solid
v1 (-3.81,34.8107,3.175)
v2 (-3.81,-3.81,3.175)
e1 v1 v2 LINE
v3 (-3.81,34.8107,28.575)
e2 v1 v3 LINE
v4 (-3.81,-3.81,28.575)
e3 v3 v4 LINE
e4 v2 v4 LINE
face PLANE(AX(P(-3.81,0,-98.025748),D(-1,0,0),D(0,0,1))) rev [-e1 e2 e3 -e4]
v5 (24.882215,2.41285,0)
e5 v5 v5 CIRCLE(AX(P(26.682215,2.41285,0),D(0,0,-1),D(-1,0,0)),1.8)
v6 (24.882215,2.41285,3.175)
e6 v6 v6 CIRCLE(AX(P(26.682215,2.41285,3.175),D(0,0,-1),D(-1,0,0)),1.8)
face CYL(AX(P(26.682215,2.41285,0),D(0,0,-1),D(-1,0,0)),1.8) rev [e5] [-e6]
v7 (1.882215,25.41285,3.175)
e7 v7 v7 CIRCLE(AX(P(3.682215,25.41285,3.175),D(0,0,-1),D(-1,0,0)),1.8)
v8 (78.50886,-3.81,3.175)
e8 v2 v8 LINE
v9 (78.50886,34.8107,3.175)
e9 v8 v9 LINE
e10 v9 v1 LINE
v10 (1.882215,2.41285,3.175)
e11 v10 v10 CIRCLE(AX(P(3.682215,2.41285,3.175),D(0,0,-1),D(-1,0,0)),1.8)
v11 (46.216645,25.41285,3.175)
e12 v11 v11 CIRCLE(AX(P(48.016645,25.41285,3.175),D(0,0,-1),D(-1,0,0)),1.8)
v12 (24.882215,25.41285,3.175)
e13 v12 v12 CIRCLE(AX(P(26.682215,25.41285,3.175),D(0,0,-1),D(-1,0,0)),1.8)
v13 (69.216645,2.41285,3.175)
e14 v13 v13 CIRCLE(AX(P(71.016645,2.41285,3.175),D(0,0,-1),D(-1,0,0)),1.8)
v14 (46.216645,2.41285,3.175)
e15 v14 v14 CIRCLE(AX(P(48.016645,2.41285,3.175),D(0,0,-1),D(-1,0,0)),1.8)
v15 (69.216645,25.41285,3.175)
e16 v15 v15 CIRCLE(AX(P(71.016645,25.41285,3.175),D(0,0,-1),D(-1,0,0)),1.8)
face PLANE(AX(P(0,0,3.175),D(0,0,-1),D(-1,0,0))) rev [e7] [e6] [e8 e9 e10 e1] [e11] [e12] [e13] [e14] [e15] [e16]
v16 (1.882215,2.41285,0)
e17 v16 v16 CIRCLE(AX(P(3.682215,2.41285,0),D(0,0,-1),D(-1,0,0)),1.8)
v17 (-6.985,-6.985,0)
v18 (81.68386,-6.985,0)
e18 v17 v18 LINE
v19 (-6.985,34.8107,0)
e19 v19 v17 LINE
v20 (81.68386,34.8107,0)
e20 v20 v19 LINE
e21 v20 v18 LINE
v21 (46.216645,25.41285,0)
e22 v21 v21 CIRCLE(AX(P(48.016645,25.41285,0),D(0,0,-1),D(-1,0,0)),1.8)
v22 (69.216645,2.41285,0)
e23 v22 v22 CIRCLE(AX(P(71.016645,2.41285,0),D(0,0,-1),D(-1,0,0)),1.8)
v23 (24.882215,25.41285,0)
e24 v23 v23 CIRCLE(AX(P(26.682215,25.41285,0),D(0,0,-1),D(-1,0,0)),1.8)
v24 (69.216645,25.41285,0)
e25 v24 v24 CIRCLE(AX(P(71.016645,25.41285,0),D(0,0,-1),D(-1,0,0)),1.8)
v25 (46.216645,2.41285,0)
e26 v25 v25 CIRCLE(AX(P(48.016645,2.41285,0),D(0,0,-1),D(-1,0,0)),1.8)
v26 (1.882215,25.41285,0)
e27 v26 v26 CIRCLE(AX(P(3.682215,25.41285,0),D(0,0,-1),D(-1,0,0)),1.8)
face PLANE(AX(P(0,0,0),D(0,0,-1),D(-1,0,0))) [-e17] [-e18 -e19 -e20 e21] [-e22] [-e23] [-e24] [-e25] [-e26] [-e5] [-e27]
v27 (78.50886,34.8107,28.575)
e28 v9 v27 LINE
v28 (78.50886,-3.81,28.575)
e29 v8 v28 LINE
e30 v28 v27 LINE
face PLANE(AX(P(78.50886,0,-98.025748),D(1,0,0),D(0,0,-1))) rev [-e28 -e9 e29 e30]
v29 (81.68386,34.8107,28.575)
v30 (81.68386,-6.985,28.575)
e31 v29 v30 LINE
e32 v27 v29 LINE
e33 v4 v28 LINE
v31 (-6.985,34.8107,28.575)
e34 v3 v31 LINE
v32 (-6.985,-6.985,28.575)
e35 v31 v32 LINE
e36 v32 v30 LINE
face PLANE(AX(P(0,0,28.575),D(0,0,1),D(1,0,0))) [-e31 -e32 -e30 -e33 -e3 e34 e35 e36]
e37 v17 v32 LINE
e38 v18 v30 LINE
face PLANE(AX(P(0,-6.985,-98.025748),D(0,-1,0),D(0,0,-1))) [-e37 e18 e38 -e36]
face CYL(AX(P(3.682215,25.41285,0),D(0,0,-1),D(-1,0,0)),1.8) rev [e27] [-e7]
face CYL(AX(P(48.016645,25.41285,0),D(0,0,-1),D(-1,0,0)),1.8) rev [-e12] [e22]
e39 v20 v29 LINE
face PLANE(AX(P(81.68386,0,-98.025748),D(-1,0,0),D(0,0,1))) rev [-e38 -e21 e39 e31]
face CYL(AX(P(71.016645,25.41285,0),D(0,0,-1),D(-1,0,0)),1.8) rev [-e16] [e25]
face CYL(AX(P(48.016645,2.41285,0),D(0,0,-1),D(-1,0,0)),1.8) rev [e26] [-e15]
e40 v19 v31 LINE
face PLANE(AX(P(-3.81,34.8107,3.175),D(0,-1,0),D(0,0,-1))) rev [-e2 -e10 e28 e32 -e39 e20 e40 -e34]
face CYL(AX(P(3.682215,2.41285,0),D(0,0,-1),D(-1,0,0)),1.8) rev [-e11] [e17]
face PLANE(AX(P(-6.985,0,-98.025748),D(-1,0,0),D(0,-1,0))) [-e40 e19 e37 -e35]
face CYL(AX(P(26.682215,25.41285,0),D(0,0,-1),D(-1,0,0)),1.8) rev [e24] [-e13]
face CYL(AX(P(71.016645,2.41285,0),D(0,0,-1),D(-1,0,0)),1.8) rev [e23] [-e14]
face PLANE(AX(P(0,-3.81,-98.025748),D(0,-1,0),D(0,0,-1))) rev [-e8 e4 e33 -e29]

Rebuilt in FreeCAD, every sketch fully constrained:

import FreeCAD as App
import Part
import Sketcher
from FreeCAD import Vector
Q = App.Units.Quantity

doc = App.newDocument("Part")
body = doc.addObject("PartDesign::Body", "Body")

# Sketch on XY plane
sketch1 = body.newObject("Sketcher::SketchObject", "Sketch")
sketch1.AttachmentSupport = (doc.getObject("XY_Plane"), [""])
sketch1.MapMode = "FlatFace"
sketch1.addGeometry(Part.LineSegment(Vector(-4, 35, 0), Vector(-4, -4, 0)), False)
sketch1.addGeometry(Part.LineSegment(Vector(-4, -4, 0), Vector(79, -4, 0)), False)
sketch1.addGeometry(Part.LineSegment(Vector(79, -4, 0), Vector(79, 35, 0)), False)
sketch1.addGeometry(Part.LineSegment(Vector(79, 35, 0), Vector(-4, 35, 0)), False)
sketch1.addConstraint(Sketcher.Constraint("Coincident", 0, 2, 1, 1))
sketch1.addConstraint(Sketcher.Constraint("Coincident", 1, 2, 2, 1))
sketch1.addConstraint(Sketcher.Constraint("Coincident", 2, 2, 3, 1))
sketch1.addConstraint(Sketcher.Constraint("Coincident", 3, 2, 0, 1))
sketch1.addConstraint(Sketcher.Constraint("Vertical", 0))
sketch1.addConstraint(Sketcher.Constraint("Horizontal", 1))
sketch1.addConstraint(Sketcher.Constraint("Vertical", 2))
sketch1.addConstraint(Sketcher.Constraint("Horizontal", 3))
sketch1.addConstraint(Sketcher.Constraint("DistanceX", 0, 2, -1, 1, Q("0.15 in")))
sketch1.addConstraint(Sketcher.Constraint("DistanceY", 0, 2, -1, 1, Q("0.15 in")))
sketch1.addConstraint(Sketcher.Constraint("DistanceX", 1, 1, 1, 2, Q("3.2409 in")))
sketch1.addConstraint(Sketcher.Constraint("DistanceY", 0, 2, 0, 1, Q("1.5205 in")))
pad1 = body.newObject("PartDesign::Pad", "Pad")
pad1.Profile = sketch1
pad1.Length = Q("0.125 in")

# Sketch on XY plane
sketch2 = body.newObject("Sketcher::SketchObject", "Sketch001")
sketch2.AttachmentSupport = (doc.getObject("XY_Plane"), [""])
sketch2.MapMode = "FlatFace"
sketch2.AttachmentOffset = App.Placement(Vector(0, 0, 0.125 * 25.4), App.Rotation())
sketch2.addGeometry(Part.LineSegment(Vector(-7, 34.8, 0), Vector(-7, -7, 0)), False)
sketch2.addGeometry(Part.LineSegment(Vector(-7, -7, 0), Vector(81.7, -7, 0)), False)
sketch2.addGeometry(Part.LineSegment(Vector(81.7, -7, 0), Vector(81.7, 34.8, 0)), False)
sketch2.addGeometry(Part.LineSegment(Vector(81.7, 34.8, 0), Vector(78.5, 34.8, 0)), False)
sketch2.addGeometry(Part.LineSegment(Vector(78.5, 34.8, 0), Vector(78.5, -3.8, 0)), False)
sketch2.addGeometry(Part.LineSegment(Vector(78.5, -3.8, 0), Vector(-3.8, -3.8, 0)), False)
sketch2.addGeometry(Part.LineSegment(Vector(-3.8, -3.8, 0), Vector(-3.8, 34.8, 0)), False)
sketch2.addGeometry(Part.LineSegment(Vector(-3.8, 34.8, 0), Vector(-7, 34.8, 0)), False)
sketch2.addConstraint(Sketcher.Constraint("Coincident", 0, 2, 1, 1))
sketch2.addConstraint(Sketcher.Constraint("Coincident", 1, 2, 2, 1))
sketch2.addConstraint(Sketcher.Constraint("Coincident", 2, 2, 3, 1))
sketch2.addConstraint(Sketcher.Constraint("Coincident", 3, 2, 4, 1))
sketch2.addConstraint(Sketcher.Constraint("Coincident", 4, 2, 5, 1))
sketch2.addConstraint(Sketcher.Constraint("Coincident", 5, 2, 6, 1))
sketch2.addConstraint(Sketcher.Constraint("Coincident", 6, 2, 7, 1))
sketch2.addConstraint(Sketcher.Constraint("Coincident", 7, 2, 0, 1))
sketch2.addConstraint(Sketcher.Constraint("Vertical", 0))
sketch2.addConstraint(Sketcher.Constraint("Horizontal", 1))
sketch2.addConstraint(Sketcher.Constraint("Vertical", 2))
sketch2.addConstraint(Sketcher.Constraint("Horizontal", 3))
sketch2.addConstraint(Sketcher.Constraint("Vertical", 4))
sketch2.addConstraint(Sketcher.Constraint("Horizontal", 5))
sketch2.addConstraint(Sketcher.Constraint("Vertical", 6))
sketch2.addConstraint(Sketcher.Constraint("Horizontal", 7))
sketch2.addConstraint(Sketcher.Constraint("Horizontal", 3, 2, 6, 2))
sketch2.addConstraint(Sketcher.Constraint("Equal", 3, 7))
sketch2.addConstraint(Sketcher.Constraint("DistanceX", 3, 2, 3, 1, Q("0.125 in")))
sketch2.addConstraint(Sketcher.Constraint("DistanceY", 4, 2, -1, 1, Q("0.15 in")))
sketch2.addConstraint(Sketcher.Constraint("DistanceX", 5, 2, -1, 1, Q("0.15 in")))
sketch2.addConstraint(Sketcher.Constraint("DistanceX", 1, 1, 1, 2, Q("3.4909 in")))
sketch2.addConstraint(Sketcher.Constraint("DistanceY", 0, 2, 0, 1, Q("1.6455 in")))
sketch2.addConstraint(Sketcher.Constraint("DistanceY", 4, 2, 4, 1, Q("1.5205 in")))
pad2 = body.newObject("PartDesign::Pad", "Pad001")
pad2.Profile = sketch2
pad2.Type = "TwoLengths"
pad2.Length = Q("1 in")
pad2.Length2 = Q("0.125 in")

# Sketch on XY plane
sketch3 = body.newObject("Sketcher::SketchObject", "Sketch002")
sketch3.AttachmentSupport = (doc.getObject("XY_Plane"), [""])
sketch3.MapMode = "FlatFace"
sketch3.addGeometry(Part.Circle(Vector(26.7, 25.4, 0), Vector(0, 0, 1), 0.6), False)
sketch3.addGeometry(Part.Circle(Vector(3.7, 25.4, 0), Vector(0, 0, 1), 0.5), False)
sketch3.addGeometry(Part.Circle(Vector(26.7, 2.4, 0), Vector(0, 0, 1), 0.6), False)
sketch3.addGeometry(Part.Circle(Vector(3.7, 2.4, 0), Vector(0, 0, 1), 0.9), False)
sketch3.addGeometry(Part.Circle(Vector(48, 2.4, 0), Vector(0, 0, 1), 0.6), False)
sketch3.addGeometry(Part.Circle(Vector(71, 2.4, 0), Vector(0, 0, 1), 0.9), False)
sketch3.addGeometry(Part.Circle(Vector(71, 25.4, 0), Vector(0, 0, 1), 0.5), False)
sketch3.addGeometry(Part.Circle(Vector(48, 25.4, 0), Vector(0, 0, 1), 0.6), False)
sketch3.addConstraint(Sketcher.Constraint("Equal", 2, 4))
sketch3.addConstraint(Sketcher.Constraint("Equal", 3, 5))
sketch3.addConstraint(Sketcher.Constraint("Equal", 1, 6))
sketch3.addConstraint(Sketcher.Constraint("Equal", 0, 7))
sketch3.addConstraint(Sketcher.Constraint("Horizontal", 0, 3, 1, 3))
sketch3.addConstraint(Sketcher.Constraint("Horizontal", 2, 3, 3, 3))
sketch3.addConstraint(Sketcher.Constraint("Horizontal", 3, 3, 4, 3))
sketch3.addConstraint(Sketcher.Constraint("Horizontal", 4, 3, 5, 3))
sketch3.addConstraint(Sketcher.Constraint("Horizontal", 1, 3, 6, 3))
sketch3.addConstraint(Sketcher.Constraint("Horizontal", 6, 3, 7, 3))
sketch3.addConstraint(Sketcher.Constraint("Vertical", 0, 3, 2, 3))
sketch3.addConstraint(Sketcher.Constraint("Vertical", 1, 3, 3, 3))
sketch3.addConstraint(Sketcher.Constraint("Vertical", 5, 3, 6, 3))
sketch3.addConstraint(Sketcher.Constraint("Vertical", 4, 3, 7, 3))
sketch3.addConstraint(Sketcher.Constraint("Diameter", 0, Q("1.123739 mm")))
sketch3.addConstraint(Sketcher.Constraint("Diameter", 1, Q("1.043334 mm")))
sketch3.addConstraint(Sketcher.Constraint("Diameter", 2, Q("1.213836 mm")))
sketch3.addConstraint(Sketcher.Constraint("Diameter", 3, Q("1.846927 mm")))
sketch3.addConstraint(Sketcher.Constraint("DistanceX", 1, 3, 0, 3, Q("23 mm")))
sketch3.addConstraint(Sketcher.Constraint("DistanceY", 2, 3, 0, 3, Q("23 mm")))
sketch3.addConstraint(Sketcher.Constraint("DistanceX", 4, 3, 5, 3, Q("23 mm")))
sketch3.addConstraint(Sketcher.Constraint("DistanceY", -1, 1, 0, 3, Q("25.41285 mm")))
sketch3.addConstraint(Sketcher.Constraint("DistanceX", 2, 3, 4, 3, Q("21.33443 mm")))
sketch3.addConstraint(Sketcher.Constraint("DistanceX", -1, 1, 0, 3, Q("26.682215 mm")))
pocket1 = body.newObject("PartDesign::Pocket", "Pocket")
pocket1.Profile = sketch3
pocket1.Type = "ThroughAll"
pocket1.Reversed = True

# Sketch on XY plane
sketch4 = body.newObject("Sketcher::SketchObject", "Sketch003")
sketch4.AttachmentSupport = (doc.getObject("XY_Plane"), [""])
sketch4.MapMode = "FlatFace"
sketch4.addGeometry(Part.Circle(Vector(71, 25.4, 0), Vector(0, 0, 1), 1.8), False)
sketch4.addGeometry(Part.Circle(Vector(71, 2.4, 0), Vector(0, 0, 1), 1.8), False)
sketch4.addGeometry(Part.Circle(Vector(3.7, 2.4, 0), Vector(0, 0, 1), 1.8), False)
sketch4.addGeometry(Part.Circle(Vector(26.7, 2.4, 0), Vector(0, 0, 1), 1.8), False)
sketch4.addGeometry(Part.Circle(Vector(48, 2.4, 0), Vector(0, 0, 1), 1.8), False)
sketch4.addGeometry(Part.Circle(Vector(48, 25.4, 0), Vector(0, 0, 1), 1.8), False)
sketch4.addGeometry(Part.Circle(Vector(26.7, 25.4, 0), Vector(0, 0, 1), 1.8), False)
sketch4.addGeometry(Part.Circle(Vector(3.7, 25.4, 0), Vector(0, 0, 1), 1.8), False)
sketch4.addConstraint(Sketcher.Constraint("Equal", 0, 1))
sketch4.addConstraint(Sketcher.Constraint("Equal", 1, 2))
sketch4.addConstraint(Sketcher.Constraint("Equal", 2, 3))
sketch4.addConstraint(Sketcher.Constraint("Equal", 3, 4))
sketch4.addConstraint(Sketcher.Constraint("Equal", 4, 5))
sketch4.addConstraint(Sketcher.Constraint("Equal", 5, 6))
sketch4.addConstraint(Sketcher.Constraint("Equal", 6, 7))
sketch4.addConstraint(Sketcher.Constraint("Horizontal", 1, 3, 2, 3))
sketch4.addConstraint(Sketcher.Constraint("Horizontal", 2, 3, 3, 3))
sketch4.addConstraint(Sketcher.Constraint("Horizontal", 3, 3, 4, 3))
sketch4.addConstraint(Sketcher.Constraint("Horizontal", 0, 3, 5, 3))
sketch4.addConstraint(Sketcher.Constraint("Horizontal", 5, 3, 6, 3))
sketch4.addConstraint(Sketcher.Constraint("Horizontal", 6, 3, 7, 3))
sketch4.addConstraint(Sketcher.Constraint("Vertical", 0, 3, 1, 3))
sketch4.addConstraint(Sketcher.Constraint("Vertical", 4, 3, 5, 3))
sketch4.addConstraint(Sketcher.Constraint("Vertical", 3, 3, 6, 3))
sketch4.addConstraint(Sketcher.Constraint("Vertical", 2, 3, 7, 3))
sketch4.addConstraint(Sketcher.Constraint("Diameter", 0, Q("3.6 mm")))
sketch4.addConstraint(Sketcher.Constraint("DistanceY", 1, 3, 0, 3, Q("23 mm")))
sketch4.addConstraint(Sketcher.Constraint("DistanceX", 2, 3, 3, 3, Q("23 mm")))
sketch4.addConstraint(Sketcher.Constraint("DistanceX", 4, 3, 1, 3, Q("23 mm")))
sketch4.addConstraint(Sketcher.Constraint("DistanceY", -1, 1, 0, 3, Q("25.41285 mm")))
sketch4.addConstraint(Sketcher.Constraint("DistanceX", 2, 3, 1, 3, Q("67.33443 mm")))
sketch4.addConstraint(Sketcher.Constraint("DistanceX", -1, 1, 0, 3, Q("71.016645 mm")))
doc.recompute()
hole = body.newObject("PartDesign::Hole", "Hole")
hole.Profile = sketch4
hole.ThreadType = "None"
hole.Diameter = 3.6
hole.DepthType = "ThroughAll"
hole.Reversed = True

doc.recompute()
